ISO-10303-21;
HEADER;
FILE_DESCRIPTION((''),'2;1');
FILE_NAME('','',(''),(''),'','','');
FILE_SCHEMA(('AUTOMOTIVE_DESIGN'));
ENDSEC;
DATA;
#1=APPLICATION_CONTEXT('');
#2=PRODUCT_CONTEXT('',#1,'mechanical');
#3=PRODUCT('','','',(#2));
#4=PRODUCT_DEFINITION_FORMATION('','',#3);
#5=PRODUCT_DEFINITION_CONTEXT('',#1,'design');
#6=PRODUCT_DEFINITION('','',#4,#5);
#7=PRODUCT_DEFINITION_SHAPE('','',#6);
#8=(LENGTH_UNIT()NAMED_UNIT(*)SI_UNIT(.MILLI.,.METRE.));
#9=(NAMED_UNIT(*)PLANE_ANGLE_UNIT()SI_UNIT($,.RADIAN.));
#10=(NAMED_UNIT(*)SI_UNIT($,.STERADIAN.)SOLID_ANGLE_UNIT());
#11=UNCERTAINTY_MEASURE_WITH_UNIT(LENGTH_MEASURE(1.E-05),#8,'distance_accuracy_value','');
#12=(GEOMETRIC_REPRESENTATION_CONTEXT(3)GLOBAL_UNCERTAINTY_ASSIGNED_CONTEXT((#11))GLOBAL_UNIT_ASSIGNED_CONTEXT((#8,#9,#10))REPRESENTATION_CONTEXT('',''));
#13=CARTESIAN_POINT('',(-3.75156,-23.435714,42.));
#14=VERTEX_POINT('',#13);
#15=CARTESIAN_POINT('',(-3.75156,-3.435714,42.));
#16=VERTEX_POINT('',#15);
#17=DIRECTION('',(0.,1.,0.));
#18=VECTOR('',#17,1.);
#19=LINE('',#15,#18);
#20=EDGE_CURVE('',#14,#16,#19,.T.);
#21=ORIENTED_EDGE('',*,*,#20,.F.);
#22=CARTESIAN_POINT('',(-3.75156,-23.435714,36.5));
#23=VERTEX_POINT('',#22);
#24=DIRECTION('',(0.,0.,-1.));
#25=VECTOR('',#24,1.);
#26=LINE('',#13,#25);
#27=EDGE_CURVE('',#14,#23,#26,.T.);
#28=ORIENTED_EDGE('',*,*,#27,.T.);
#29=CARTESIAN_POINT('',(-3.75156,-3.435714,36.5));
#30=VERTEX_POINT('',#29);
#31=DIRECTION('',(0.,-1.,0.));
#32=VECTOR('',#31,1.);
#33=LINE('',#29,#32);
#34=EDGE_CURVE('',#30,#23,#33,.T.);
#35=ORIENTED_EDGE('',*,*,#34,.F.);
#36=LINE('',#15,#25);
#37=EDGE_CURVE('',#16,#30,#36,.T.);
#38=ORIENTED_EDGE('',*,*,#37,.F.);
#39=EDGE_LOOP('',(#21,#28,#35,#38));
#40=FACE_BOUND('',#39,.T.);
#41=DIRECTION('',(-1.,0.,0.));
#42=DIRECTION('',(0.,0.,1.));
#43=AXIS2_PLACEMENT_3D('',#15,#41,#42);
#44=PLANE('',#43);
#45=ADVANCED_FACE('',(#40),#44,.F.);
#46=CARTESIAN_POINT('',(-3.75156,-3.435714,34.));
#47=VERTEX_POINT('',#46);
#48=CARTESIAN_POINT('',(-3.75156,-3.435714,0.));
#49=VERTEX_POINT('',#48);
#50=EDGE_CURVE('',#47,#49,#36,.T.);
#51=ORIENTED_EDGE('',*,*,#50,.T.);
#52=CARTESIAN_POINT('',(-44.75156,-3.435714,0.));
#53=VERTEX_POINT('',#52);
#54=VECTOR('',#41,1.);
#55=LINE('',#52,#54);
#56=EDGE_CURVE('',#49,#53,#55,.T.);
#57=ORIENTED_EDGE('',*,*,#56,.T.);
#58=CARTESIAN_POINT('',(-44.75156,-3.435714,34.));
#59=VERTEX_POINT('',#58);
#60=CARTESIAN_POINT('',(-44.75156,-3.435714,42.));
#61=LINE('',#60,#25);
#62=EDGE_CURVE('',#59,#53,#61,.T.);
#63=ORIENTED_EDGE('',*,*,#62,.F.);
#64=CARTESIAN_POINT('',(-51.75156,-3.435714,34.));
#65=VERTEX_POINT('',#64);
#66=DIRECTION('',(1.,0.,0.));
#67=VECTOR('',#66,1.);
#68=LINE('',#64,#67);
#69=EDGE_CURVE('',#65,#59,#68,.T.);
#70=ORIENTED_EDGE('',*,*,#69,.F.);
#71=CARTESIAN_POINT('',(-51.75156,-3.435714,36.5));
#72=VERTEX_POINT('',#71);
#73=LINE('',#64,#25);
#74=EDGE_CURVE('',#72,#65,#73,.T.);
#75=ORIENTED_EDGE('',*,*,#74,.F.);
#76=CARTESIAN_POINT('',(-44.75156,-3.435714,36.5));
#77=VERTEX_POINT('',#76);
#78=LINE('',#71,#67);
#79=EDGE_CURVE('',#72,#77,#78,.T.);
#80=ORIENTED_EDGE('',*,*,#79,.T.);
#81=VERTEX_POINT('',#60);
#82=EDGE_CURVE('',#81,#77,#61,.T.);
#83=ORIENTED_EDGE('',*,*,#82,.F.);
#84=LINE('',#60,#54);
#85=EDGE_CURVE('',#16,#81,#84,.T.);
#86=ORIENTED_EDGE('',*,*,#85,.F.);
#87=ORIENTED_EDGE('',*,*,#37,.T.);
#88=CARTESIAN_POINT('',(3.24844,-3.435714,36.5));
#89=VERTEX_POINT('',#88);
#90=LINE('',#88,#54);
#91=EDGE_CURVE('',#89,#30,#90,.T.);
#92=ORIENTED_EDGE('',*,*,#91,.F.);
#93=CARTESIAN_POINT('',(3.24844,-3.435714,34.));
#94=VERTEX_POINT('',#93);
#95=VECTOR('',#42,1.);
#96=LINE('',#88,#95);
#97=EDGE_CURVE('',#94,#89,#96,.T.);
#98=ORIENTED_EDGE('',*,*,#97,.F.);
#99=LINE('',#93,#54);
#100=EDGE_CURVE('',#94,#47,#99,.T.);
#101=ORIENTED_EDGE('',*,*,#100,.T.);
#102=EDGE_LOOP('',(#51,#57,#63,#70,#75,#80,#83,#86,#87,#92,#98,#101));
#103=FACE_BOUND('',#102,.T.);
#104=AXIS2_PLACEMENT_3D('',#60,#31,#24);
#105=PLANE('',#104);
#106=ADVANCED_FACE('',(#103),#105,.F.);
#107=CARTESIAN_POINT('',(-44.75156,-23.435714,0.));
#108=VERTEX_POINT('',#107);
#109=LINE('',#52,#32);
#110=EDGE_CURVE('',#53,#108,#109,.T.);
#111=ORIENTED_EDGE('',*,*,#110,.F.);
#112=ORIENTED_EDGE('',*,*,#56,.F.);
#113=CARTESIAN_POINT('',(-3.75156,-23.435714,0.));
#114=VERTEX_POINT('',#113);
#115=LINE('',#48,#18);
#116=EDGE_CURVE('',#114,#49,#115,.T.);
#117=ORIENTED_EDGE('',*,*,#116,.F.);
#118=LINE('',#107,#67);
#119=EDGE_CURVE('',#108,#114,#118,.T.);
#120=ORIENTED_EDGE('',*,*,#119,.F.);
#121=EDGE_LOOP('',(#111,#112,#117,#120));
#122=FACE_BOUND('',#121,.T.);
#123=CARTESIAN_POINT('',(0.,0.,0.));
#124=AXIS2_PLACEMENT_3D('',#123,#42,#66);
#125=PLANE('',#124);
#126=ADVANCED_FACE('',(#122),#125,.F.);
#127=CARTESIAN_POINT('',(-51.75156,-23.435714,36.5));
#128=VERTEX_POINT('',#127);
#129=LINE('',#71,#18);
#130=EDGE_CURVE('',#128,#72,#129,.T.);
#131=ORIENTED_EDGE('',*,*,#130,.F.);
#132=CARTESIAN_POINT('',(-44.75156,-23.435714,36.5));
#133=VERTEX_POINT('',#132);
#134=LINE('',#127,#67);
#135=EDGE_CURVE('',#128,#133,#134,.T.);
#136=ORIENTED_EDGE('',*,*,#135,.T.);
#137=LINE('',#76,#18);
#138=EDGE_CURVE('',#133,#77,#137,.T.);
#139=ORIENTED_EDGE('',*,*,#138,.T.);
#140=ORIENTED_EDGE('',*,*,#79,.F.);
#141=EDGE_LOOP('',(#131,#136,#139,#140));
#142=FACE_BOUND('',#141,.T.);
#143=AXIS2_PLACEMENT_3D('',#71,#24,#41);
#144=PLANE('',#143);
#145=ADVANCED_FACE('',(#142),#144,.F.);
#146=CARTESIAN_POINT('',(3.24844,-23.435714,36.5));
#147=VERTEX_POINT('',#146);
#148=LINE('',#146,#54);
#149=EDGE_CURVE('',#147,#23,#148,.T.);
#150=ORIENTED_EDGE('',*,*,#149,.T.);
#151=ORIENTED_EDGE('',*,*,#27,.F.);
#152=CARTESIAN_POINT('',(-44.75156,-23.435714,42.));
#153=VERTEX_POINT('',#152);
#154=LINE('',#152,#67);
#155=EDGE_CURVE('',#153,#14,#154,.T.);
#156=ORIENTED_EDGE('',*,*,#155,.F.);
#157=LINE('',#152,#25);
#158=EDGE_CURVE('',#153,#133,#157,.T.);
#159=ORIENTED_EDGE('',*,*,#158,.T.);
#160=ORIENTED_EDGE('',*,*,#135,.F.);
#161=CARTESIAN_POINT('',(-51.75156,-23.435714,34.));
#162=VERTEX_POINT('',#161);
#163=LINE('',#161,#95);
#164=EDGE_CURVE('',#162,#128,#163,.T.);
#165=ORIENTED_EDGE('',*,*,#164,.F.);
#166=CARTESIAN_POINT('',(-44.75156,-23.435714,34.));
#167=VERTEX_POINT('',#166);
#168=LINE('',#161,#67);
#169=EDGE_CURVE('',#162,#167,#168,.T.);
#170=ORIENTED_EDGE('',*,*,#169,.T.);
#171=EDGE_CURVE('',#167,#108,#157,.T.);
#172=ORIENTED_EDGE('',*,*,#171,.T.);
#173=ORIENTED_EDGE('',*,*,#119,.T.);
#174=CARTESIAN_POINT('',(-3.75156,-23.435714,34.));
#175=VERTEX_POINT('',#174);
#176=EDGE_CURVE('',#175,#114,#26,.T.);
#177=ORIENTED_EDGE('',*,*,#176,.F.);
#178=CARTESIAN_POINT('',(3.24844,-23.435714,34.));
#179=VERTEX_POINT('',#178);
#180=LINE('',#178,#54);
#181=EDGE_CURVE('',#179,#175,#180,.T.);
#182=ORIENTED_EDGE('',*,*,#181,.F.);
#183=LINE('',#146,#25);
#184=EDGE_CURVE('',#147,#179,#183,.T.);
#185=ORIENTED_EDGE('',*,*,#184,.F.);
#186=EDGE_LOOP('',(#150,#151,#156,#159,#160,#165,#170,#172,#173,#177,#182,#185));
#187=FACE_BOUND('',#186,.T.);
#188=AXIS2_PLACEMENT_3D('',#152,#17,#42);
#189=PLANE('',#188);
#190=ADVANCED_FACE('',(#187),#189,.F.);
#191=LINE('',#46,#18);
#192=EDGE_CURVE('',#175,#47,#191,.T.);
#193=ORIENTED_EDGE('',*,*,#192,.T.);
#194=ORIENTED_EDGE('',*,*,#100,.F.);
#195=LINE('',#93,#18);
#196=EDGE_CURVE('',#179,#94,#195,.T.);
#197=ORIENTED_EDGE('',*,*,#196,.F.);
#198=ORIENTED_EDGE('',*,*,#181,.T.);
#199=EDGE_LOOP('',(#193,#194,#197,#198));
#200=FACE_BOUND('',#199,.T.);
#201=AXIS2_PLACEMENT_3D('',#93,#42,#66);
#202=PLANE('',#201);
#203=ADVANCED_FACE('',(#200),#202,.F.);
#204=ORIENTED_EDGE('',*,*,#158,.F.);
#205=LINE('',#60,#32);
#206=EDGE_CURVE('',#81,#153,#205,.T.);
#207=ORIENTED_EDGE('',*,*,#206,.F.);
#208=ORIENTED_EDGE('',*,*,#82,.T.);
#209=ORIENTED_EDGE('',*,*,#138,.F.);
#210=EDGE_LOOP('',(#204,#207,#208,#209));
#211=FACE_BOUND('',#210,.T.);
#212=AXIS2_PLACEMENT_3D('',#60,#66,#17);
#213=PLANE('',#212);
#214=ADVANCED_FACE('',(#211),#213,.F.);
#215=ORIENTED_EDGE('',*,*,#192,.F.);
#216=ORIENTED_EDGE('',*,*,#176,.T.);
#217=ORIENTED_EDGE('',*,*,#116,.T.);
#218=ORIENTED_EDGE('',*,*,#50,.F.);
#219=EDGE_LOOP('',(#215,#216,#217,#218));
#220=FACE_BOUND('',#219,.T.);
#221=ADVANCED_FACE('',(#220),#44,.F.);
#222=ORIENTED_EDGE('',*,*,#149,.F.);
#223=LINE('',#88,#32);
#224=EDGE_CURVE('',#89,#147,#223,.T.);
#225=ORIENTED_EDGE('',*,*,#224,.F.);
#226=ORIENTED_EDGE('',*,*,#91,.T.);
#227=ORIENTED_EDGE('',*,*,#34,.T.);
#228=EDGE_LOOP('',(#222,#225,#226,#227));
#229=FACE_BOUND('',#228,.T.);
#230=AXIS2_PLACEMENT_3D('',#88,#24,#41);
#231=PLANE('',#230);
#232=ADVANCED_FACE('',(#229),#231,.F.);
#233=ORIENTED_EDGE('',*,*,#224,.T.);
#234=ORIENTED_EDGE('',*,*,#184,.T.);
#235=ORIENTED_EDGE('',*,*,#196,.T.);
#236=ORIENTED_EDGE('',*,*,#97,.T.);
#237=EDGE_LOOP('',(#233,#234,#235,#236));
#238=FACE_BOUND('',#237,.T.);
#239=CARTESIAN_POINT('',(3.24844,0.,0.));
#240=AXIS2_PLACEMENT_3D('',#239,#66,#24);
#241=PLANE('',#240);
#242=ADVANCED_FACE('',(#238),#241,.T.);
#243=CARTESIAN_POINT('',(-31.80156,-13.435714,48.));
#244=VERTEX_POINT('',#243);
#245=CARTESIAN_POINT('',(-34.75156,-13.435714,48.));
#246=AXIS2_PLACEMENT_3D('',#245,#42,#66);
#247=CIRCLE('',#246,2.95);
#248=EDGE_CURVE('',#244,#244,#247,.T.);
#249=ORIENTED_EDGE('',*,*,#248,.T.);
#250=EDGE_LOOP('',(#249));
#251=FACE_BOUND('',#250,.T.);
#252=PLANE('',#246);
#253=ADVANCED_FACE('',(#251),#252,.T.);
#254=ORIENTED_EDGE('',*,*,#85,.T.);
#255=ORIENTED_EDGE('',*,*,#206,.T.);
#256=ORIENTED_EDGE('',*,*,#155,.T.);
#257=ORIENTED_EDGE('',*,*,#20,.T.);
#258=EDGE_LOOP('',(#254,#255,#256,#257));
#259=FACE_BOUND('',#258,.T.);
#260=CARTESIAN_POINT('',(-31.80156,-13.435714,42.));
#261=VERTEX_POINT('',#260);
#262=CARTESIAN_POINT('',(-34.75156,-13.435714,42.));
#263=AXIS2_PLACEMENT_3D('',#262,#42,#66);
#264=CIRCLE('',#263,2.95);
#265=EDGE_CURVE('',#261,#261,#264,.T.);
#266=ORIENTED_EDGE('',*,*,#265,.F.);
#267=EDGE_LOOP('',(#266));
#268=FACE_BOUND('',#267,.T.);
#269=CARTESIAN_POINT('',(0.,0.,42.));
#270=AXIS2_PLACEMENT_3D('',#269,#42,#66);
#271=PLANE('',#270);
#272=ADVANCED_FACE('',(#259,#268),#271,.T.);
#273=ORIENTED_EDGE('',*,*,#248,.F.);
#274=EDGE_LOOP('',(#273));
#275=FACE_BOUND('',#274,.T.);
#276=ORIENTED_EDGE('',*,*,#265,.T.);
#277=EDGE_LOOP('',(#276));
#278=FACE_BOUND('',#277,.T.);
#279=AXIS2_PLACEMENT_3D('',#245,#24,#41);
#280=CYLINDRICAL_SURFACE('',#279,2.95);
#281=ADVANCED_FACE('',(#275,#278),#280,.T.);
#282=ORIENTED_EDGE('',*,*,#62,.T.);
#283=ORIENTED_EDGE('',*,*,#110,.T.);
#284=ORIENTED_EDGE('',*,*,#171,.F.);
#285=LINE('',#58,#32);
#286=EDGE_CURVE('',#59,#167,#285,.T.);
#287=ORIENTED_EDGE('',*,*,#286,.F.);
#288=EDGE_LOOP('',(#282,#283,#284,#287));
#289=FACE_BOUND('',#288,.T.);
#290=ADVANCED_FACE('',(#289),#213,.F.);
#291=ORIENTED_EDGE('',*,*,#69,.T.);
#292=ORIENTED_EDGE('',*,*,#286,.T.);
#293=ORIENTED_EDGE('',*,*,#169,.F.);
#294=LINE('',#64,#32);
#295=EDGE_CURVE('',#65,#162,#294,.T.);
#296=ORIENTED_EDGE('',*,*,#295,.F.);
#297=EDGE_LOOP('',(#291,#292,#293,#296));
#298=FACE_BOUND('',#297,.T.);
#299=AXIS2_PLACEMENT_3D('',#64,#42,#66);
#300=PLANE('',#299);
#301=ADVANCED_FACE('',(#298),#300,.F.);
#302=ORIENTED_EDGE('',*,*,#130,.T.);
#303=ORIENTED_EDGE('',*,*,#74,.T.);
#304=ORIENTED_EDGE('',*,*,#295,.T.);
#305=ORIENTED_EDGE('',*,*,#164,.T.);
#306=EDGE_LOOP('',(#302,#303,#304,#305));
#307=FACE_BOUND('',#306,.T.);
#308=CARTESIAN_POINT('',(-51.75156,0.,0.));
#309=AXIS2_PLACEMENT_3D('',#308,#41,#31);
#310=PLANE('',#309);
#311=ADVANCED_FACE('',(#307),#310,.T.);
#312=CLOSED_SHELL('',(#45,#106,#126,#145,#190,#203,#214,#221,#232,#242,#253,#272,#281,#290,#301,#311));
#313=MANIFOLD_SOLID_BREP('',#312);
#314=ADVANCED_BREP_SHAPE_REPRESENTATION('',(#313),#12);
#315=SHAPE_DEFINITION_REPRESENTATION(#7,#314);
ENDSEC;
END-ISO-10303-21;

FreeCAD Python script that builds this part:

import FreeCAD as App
import Part
import Sketcher
from FreeCAD import Vector


def add_polygon(sketch, points):
    """Adds a closed chain of lines whose ends are joined by coincident constraints."""
    first, n = sketch.GeometryCount, len(points)
    for a, b in zip(points, points[1:] + points[:1]):
        sketch.addGeometry(Part.LineSegment(App.Vector(*a, 0), App.Vector(*b, 0)), False)
    for i in range(n):
        sketch.addConstraint(Sketcher.Constraint("Coincident", first + i, 2, first + (i + 1) % n, 1))

doc = App.newDocument("Part")
body = doc.addObject("PartDesign::Body", "Body")

sketch1 = doc.addObject("Sketcher::SketchObject", "Sketch")
body.addObject(sketch1)
sketch1.AttachmentSupport = (doc.XY_Plane, [""])
sketch1.MapMode = "FlatFace"
add_polygon(sketch1, [(-45, -3), (-45, -23), (-4, -23), (-4, -3)])
sketch1.addConstraint(Sketcher.Constraint("Vertical", 0))
sketch1.addConstraint(Sketcher.Constraint("Horizontal", 1))
sketch1.addConstraint(Sketcher.Constraint("Vertical", 2))
sketch1.addConstraint(Sketcher.Constraint("Horizontal", 3))
sketch1.addConstraint(Sketcher.Constraint("DistanceX", 1, 1, 1, 2, 41.0))
sketch1.addConstraint(Sketcher.Constraint("DistanceY", 0, 2, 0, 1, 20.0))
sketch1.addConstraint(Sketcher.Constraint("DistanceX", 0, 2, -1, 1, 44.75156))
sketch1.addConstraint(Sketcher.Constraint("DistanceY", 0, 2, -1, 1, 23.435714))
pad1 = doc.addObject("PartDesign::Pad", "Pad")
body.addObject(pad1)
pad1.Profile = sketch1
pad1.Length = 42

sketch2 = doc.addObject("Sketcher::SketchObject", "Sketch001")
body.addObject(sketch2)
sketch2.AttachmentSupport = (doc.YZ_Plane, [""])
sketch2.MapMode = "FlatFace"
sketch2.AttachmentOffset = App.Placement(Vector(0, 0, -3.75156), App.Rotation())
add_polygon(sketch2, [(-3.4, 36.5), (-23.4, 36.5), (-23.4, 34), (-3.4, 34)])
sketch2.addConstraint(Sketcher.Constraint("Horizontal", 0))
sketch2.addConstraint(Sketcher.Constraint("Vertical", 1))
sketch2.addConstraint(Sketcher.Constraint("Horizontal", 2))
sketch2.addConstraint(Sketcher.Constraint("Vertical", 3))
sketch2.addConstraint(Sketcher.Constraint("DistanceX", 0, 2, 0, 1, 20.0))
sketch2.addConstraint(Sketcher.Constraint("DistanceY", 1, 2, 1, 1, 2.5))
sketch2.addConstraint(Sketcher.Constraint("DistanceY", -1, 1, 1, 2, 34.0))
sketch2.addConstraint(Sketcher.Constraint("DistanceX", 0, 2, -1, 1, 23.435714))
pad2 = doc.addObject("PartDesign::Pad", "Pad001")
body.addObject(pad2)
pad2.Profile = sketch2
pad2.Length = 7

sketch3 = doc.addObject("Sketcher::SketchObject", "Sketch002")
body.addObject(sketch3)
sketch3.AttachmentSupport = (doc.YZ_Plane, [""])
sketch3.MapMode = "FlatFace"
sketch3.AttachmentOffset = App.Placement(Vector(0, 0, -44.75156), App.Rotation())
add_polygon(sketch3, [(-3.4, 34), (-23.4, 34), (-23.4, 36.5), (-3.4, 36.5)])
sketch3.addConstraint(Sketcher.Constraint("Horizontal", 0))
sketch3.addConstraint(Sketcher.Constraint("Vertical", 1))
sketch3.addConstraint(Sketcher.Constraint("Horizontal", 2))
sketch3.addConstraint(Sketcher.Constraint("Vertical", 3))
sketch3.addConstraint(Sketcher.Constraint("DistanceX", 0, 2, 0, 1, 20.0))
sketch3.addConstraint(Sketcher.Constraint("DistanceY", 1, 1, 1, 2, 2.5))
sketch3.addConstraint(Sketcher.Constraint("DistanceY", -1, 1, 0, 2, 34.0))
sketch3.addConstraint(Sketcher.Constraint("DistanceX", 0, 2, -1, 1, 23.435714))
pad3 = doc.addObject("PartDesign::Pad", "Pad002")
body.addObject(pad3)
pad3.Profile = sketch3
pad3.Length = 7
pad3.Reversed = True

sketch4 = doc.addObject("Sketcher::SketchObject", "Sketch003")
body.addObject(sketch4)
sketch4.AttachmentSupport = (doc.XY_Plane, [""])
sketch4.MapMode = "FlatFace"
sketch4.AttachmentOffset = App.Placement(Vector(0, 0, 42), App.Rotation())
sketch4.addGeometry(Part.Circle(Vector(-34.8, -13.4, 0), Vector(0, 0, 1), 3), False)
sketch4.addConstraint(Sketcher.Constraint("Diameter", 0, 5.9))
sketch4.addConstraint(Sketcher.Constraint("DistanceX", 0, 3, -1, 1, 34.75156))
sketch4.addConstraint(Sketcher.Constraint("DistanceY", 0, 3, -1, 1, 13.435714))
pad4 = doc.addObject("PartDesign::Pad", "Pad003")
body.addObject(pad4)
pad4.Profile = sketch4
pad4.Length = 6

doc.recompute()
